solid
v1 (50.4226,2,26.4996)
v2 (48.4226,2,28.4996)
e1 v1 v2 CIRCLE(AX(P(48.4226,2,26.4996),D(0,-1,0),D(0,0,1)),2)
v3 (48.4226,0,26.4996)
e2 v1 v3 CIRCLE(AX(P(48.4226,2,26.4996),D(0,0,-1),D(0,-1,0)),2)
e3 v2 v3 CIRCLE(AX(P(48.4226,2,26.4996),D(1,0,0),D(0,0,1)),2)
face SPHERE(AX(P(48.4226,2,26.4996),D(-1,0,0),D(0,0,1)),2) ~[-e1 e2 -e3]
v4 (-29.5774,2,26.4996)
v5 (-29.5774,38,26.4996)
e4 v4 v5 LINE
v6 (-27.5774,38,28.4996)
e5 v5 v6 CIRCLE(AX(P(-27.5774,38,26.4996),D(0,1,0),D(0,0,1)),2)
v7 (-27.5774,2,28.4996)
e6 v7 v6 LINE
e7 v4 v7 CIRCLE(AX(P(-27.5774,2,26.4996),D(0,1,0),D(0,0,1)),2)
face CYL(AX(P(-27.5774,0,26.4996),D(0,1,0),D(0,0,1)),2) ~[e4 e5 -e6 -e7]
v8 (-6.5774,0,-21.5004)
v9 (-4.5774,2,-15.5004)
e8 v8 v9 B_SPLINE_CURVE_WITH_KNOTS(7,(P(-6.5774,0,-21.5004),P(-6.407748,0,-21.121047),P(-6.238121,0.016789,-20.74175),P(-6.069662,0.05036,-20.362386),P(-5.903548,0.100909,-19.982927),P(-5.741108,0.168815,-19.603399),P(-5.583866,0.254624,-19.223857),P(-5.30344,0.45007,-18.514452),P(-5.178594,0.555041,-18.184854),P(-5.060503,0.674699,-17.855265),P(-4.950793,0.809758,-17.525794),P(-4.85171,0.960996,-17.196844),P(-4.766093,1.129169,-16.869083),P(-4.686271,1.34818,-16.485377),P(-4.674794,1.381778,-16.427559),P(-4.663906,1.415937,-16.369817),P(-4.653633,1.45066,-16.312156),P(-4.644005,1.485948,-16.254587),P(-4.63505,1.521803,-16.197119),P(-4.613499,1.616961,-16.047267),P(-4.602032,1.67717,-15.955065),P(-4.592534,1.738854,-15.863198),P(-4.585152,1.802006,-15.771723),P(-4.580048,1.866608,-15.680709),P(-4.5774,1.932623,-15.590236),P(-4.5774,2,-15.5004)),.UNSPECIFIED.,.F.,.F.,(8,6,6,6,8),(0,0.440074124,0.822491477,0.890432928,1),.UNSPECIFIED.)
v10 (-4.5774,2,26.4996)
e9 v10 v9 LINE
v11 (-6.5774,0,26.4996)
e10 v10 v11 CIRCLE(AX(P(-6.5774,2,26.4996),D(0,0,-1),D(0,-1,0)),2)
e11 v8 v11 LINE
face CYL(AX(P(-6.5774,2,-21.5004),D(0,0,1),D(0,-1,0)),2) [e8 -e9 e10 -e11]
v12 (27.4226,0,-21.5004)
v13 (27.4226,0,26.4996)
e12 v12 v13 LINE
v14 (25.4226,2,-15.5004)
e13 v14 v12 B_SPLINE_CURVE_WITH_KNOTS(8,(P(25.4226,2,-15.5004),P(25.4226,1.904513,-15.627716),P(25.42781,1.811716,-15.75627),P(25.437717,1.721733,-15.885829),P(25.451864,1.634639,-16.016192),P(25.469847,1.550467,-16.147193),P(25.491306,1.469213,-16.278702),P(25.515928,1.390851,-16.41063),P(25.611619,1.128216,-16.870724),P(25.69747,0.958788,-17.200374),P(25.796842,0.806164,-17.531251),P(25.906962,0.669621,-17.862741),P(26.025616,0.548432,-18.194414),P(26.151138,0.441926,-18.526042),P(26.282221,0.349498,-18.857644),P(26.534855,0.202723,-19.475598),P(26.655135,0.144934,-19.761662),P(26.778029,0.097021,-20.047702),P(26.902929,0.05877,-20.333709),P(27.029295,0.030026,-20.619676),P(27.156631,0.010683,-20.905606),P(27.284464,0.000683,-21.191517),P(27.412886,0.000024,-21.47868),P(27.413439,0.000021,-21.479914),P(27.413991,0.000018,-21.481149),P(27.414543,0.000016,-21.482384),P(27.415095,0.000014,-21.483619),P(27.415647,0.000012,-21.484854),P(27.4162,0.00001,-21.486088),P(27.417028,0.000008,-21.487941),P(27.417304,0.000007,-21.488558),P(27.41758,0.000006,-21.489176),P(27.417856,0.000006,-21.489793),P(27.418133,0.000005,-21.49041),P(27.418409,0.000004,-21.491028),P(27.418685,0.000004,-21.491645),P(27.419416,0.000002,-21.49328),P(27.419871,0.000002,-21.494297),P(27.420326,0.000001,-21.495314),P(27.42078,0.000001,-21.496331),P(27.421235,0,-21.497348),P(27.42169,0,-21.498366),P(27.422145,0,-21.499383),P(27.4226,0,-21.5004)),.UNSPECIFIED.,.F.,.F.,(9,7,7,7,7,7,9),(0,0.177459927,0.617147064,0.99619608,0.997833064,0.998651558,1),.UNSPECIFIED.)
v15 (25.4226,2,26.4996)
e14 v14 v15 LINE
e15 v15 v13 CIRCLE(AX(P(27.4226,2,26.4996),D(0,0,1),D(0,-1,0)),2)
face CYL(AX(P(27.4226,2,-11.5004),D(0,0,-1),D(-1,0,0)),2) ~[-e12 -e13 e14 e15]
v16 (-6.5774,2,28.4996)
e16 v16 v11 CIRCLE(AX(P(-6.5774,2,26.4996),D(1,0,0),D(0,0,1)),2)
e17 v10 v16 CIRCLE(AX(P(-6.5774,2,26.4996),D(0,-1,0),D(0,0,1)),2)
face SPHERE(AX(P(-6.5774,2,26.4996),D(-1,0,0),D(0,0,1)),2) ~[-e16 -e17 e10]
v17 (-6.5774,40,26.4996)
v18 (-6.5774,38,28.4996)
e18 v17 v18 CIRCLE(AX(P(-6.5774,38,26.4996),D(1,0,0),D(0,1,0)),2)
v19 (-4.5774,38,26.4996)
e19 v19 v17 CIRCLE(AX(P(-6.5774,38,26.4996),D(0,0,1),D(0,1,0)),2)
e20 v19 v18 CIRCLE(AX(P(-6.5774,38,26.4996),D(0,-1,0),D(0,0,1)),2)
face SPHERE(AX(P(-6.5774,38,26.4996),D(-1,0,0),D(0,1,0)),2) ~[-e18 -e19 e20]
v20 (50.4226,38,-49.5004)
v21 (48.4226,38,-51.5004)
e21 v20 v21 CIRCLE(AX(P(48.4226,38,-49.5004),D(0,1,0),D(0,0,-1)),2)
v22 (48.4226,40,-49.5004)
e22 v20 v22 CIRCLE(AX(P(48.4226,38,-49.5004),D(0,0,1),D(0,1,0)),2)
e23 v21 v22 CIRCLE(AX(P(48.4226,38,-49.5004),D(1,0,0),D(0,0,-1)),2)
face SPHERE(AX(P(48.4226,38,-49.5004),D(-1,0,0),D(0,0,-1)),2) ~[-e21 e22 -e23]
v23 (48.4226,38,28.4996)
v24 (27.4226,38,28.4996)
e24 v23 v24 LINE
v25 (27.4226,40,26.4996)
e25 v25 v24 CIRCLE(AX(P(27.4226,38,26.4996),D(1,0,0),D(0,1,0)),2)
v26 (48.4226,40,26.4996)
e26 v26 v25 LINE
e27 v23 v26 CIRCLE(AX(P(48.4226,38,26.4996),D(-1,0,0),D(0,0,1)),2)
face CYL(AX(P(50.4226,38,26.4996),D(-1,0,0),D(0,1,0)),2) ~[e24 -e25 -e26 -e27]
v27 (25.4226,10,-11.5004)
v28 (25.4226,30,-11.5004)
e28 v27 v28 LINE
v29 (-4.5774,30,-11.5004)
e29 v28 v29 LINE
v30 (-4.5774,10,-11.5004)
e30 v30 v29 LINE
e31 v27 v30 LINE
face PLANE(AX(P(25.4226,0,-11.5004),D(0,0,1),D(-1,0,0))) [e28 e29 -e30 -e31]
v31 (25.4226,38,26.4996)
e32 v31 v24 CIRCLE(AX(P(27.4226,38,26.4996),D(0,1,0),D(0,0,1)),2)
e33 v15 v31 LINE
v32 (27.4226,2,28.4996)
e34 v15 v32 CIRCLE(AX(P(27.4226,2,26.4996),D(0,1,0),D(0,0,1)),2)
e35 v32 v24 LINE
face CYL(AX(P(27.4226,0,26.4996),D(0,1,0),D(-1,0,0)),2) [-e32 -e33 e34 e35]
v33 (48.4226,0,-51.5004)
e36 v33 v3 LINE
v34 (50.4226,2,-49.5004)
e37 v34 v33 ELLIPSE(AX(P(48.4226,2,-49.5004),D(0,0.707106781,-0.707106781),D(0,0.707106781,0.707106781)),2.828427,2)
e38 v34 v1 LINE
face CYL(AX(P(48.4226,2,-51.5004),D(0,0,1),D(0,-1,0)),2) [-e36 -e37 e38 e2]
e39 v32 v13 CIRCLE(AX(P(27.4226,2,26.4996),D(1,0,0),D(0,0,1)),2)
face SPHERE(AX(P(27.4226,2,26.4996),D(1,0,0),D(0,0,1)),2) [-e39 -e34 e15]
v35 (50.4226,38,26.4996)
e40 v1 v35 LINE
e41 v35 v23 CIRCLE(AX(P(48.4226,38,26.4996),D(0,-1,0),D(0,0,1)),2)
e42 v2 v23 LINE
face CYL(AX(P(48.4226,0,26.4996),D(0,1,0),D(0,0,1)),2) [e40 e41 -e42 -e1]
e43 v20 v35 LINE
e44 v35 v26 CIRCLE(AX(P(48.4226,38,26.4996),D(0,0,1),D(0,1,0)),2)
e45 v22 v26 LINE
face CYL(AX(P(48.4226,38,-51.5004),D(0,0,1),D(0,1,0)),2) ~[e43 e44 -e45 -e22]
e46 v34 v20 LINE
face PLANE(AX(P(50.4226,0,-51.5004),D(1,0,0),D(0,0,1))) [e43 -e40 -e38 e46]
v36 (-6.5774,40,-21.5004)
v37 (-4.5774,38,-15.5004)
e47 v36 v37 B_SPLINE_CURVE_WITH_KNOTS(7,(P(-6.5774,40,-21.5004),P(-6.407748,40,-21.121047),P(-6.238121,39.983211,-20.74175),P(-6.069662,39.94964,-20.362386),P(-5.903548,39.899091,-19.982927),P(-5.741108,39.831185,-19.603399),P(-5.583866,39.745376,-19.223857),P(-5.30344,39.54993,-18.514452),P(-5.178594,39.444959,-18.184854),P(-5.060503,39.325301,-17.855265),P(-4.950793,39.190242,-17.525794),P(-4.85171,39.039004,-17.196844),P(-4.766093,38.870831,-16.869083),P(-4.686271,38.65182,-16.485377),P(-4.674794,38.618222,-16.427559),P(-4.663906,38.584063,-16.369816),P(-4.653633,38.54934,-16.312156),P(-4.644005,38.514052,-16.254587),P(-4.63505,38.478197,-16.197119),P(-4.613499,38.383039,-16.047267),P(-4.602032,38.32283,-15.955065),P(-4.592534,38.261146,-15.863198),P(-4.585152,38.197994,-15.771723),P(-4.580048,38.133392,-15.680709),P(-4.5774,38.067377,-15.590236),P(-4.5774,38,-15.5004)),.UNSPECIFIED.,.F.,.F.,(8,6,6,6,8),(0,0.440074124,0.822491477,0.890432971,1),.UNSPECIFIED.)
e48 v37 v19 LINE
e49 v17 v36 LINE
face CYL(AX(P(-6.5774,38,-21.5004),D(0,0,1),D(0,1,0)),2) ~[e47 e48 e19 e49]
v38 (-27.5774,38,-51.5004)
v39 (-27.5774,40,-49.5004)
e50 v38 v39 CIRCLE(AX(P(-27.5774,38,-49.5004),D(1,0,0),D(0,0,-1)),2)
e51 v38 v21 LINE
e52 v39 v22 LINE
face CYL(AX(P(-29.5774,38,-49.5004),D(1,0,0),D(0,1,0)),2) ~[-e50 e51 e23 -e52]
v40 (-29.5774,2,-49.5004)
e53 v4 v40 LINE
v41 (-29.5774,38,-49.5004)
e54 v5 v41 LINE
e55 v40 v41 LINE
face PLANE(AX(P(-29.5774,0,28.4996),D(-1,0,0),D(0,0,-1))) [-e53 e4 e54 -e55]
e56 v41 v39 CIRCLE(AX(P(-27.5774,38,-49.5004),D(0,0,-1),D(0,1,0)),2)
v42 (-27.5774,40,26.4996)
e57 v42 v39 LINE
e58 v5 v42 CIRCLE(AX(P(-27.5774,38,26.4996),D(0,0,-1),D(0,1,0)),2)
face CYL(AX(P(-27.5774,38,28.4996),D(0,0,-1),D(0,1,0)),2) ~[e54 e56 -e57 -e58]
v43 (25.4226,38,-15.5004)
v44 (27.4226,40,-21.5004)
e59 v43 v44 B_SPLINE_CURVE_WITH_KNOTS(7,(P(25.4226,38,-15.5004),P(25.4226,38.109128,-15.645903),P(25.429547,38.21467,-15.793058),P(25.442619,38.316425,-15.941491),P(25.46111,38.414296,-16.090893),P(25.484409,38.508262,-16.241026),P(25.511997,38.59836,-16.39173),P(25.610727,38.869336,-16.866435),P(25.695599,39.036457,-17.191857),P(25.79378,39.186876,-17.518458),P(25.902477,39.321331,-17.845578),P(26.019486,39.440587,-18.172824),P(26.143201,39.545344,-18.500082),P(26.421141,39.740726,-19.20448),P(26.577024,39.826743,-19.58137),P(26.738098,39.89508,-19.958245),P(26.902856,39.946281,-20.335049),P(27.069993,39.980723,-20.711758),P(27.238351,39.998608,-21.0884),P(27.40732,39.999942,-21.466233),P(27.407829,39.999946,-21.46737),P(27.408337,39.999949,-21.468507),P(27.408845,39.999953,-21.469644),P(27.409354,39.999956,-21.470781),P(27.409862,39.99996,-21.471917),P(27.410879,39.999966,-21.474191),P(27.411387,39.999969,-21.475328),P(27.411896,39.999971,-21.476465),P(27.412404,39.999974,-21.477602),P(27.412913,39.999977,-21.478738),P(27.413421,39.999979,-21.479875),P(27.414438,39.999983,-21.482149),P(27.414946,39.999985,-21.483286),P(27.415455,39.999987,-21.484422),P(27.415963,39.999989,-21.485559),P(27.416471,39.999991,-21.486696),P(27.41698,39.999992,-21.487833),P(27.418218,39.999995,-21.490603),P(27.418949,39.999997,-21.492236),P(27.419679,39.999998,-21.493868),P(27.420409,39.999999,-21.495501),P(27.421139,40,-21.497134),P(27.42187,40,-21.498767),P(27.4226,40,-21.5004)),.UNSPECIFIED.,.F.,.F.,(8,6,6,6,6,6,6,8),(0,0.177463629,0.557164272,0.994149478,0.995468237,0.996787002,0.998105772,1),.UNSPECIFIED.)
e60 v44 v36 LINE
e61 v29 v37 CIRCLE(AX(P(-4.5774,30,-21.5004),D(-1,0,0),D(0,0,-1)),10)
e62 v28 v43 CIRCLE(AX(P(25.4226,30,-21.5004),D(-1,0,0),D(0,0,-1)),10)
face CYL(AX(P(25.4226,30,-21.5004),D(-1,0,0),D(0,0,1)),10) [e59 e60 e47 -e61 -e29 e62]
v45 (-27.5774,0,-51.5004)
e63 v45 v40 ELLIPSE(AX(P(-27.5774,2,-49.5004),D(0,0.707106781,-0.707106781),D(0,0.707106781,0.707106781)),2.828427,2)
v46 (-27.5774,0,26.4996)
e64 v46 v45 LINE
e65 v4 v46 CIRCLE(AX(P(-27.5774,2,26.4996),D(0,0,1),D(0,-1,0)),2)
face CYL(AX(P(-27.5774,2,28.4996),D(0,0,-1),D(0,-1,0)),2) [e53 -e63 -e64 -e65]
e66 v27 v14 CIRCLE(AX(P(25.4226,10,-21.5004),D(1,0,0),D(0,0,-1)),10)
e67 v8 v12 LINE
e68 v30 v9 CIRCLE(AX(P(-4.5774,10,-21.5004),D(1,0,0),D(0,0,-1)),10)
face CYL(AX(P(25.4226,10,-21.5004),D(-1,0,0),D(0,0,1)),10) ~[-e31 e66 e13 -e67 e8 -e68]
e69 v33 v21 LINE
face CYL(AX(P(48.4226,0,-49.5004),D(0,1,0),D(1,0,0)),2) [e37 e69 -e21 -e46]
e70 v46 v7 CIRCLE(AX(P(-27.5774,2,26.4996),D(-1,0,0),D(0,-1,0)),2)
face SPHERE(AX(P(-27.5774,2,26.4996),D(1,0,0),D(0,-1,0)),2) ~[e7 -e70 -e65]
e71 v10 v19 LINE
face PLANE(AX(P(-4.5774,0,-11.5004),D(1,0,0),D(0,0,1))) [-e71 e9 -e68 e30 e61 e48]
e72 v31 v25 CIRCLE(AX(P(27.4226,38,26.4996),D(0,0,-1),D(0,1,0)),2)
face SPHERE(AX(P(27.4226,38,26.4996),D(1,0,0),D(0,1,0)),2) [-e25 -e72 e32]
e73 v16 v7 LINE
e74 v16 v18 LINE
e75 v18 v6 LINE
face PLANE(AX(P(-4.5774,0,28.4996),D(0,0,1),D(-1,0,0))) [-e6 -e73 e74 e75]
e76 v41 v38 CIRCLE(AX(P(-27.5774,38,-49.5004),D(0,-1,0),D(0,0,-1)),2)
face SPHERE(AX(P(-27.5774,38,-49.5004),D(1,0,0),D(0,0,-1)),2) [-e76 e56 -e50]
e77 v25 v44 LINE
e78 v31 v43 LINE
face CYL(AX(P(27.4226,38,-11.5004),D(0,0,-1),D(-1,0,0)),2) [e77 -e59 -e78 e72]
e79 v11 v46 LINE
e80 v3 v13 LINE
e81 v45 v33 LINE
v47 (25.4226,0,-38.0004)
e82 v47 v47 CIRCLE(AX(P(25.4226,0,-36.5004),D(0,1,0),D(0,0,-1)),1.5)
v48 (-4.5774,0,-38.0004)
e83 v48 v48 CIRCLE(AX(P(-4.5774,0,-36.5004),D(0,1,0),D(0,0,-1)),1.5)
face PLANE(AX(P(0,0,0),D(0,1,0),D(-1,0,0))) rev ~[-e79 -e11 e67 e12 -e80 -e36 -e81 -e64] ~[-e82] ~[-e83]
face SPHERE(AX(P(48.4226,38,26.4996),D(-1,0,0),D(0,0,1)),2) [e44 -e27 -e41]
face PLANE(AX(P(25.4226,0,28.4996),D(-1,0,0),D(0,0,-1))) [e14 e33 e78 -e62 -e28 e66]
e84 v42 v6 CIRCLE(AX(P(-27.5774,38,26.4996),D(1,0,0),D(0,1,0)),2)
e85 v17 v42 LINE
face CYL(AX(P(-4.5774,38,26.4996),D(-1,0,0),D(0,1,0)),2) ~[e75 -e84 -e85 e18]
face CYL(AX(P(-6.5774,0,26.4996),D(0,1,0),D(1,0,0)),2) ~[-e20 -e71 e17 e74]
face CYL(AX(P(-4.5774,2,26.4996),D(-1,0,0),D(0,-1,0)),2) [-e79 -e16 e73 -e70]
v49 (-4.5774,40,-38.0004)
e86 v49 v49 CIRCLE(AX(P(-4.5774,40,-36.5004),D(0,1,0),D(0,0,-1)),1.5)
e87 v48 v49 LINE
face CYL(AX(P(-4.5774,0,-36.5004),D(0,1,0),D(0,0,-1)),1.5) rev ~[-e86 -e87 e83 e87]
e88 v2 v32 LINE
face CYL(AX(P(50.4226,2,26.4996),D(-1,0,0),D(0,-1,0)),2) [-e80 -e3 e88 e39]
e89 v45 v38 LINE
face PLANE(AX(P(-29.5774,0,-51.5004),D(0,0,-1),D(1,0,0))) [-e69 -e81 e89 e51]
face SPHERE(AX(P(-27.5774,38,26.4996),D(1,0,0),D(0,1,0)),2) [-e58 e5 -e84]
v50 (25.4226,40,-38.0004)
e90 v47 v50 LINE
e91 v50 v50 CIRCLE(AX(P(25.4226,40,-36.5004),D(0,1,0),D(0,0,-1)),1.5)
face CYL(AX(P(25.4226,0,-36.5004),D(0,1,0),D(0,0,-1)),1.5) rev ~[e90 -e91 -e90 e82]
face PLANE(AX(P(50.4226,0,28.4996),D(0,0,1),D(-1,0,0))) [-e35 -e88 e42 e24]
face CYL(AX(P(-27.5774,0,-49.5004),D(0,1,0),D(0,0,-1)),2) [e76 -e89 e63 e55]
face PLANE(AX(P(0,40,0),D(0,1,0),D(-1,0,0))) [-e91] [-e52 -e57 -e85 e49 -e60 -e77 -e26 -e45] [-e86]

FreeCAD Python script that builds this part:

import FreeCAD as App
import Part
import Sketcher
from FreeCAD import Vector


def edges_at(feature, points):
    """Names of the edges that pass closest to the given points."""
    edges = feature.Shape.Edges
    near = lambda p: min(range(len(edges)), key=lambda i: edges[i].distToShape(Part.Vertex(*p))[0])
    return sorted({f"Edge{near(p) + 1}" for p in points})

doc = App.newDocument("Part")
body = doc.addObject("PartDesign::Body", "Body")

sketch1 = body.newObject("Sketcher::SketchObject", "Sketch")
sketch1.AttachmentSupport = (doc.getObject("XZ_Plane"), [""])
sketch1.MapMode = "FlatFace"
sketch1.addGeometry(Part.LineSegment(Vector(50.4226, -51.5004, 0), Vector(-29.5774, -51.5004, 0)), False)
sketch1.addGeometry(Part.LineSegment(Vector(-29.5774, -51.5004, 0), Vector(-29.5774, 28.4996, 0)), False)
sketch1.addGeometry(Part.LineSegment(Vector(-29.5774, 28.4996, 0), Vector(-4.5774, 28.4996, 0)), False)
sketch1.addGeometry(Part.LineSegment(Vector(-4.5774, 28.4996, 0), Vector(-4.5774, -11.5004, 0)), False)
sketch1.addGeometry(Part.LineSegment(Vector(-4.5774, -11.5004, 0), Vector(25.4226, -11.5004, 0)), False)
sketch1.addGeometry(Part.LineSegment(Vector(25.4226, -11.5004, 0), Vector(25.4226, 28.4996, 0)), False)
sketch1.addGeometry(Part.LineSegment(Vector(25.4226, 28.4996, 0), Vector(50.4226, 28.4996, 0)), False)
sketch1.addGeometry(Part.LineSegment(Vector(50.4226, 28.4996, 0), Vector(50.4226, -51.5004, 0)), False)
sketch1.addConstraint(Sketcher.Constraint("Coincident", 0, 2, 1, 1))
sketch1.addConstraint(Sketcher.Constraint("Coincident", 1, 2, 2, 1))
sketch1.addConstraint(Sketcher.Constraint("Coincident", 2, 2, 3, 1))
sketch1.addConstraint(Sketcher.Constraint("Coincident", 3, 2, 4, 1))
sketch1.addConstraint(Sketcher.Constraint("Coincident", 4, 2, 5, 1))
sketch1.addConstraint(Sketcher.Constraint("Coincident", 5, 2, 6, 1))
sketch1.addConstraint(Sketcher.Constraint("Coincident", 6, 2, 7, 1))
sketch1.addConstraint(Sketcher.Constraint("Coincident", 7, 2, 0, 1))
sketch1.addConstraint(Sketcher.Constraint("Horizontal", 0))
sketch1.addConstraint(Sketcher.Constraint("Vertical", 1))
sketch1.addConstraint(Sketcher.Constraint("Horizontal", 2))
sketch1.addConstraint(Sketcher.Constraint("Vertical", 3))
sketch1.addConstraint(Sketcher.Constraint("Horizontal", 4))
sketch1.addConstraint(Sketcher.Constraint("Vertical", 5))
sketch1.addConstraint(Sketcher.Constraint("Horizontal", 6))
sketch1.addConstraint(Sketcher.Constraint("Vertical", 7))
sketch1.addConstraint(Sketcher.Constraint("Horizontal", 2, 2, 5, 2))
sketch1.addConstraint(Sketcher.Constraint("Equal", 2, 6))
sketch1.addConstraint(Sketcher.Constraint("Equal", 0, 1))
sketch1.addConstraint(Sketcher.Constraint("DistanceX", 0, 2, 0, 1, 80.0))
sketch1.addConstraint(Sketcher.Constraint("DistanceX", 4, 1, 4, 2, 30.0))
sketch1.addConstraint(Sketcher.Constraint("DistanceY", 3, 2, 3, 1, 40.0))
sketch1.addConstraint(Sketcher.Constraint("DistanceX", 0, 2, -1, 1, 29.5774))
sketch1.addConstraint(Sketcher.Constraint("DistanceY", 0, 2, -1, 1, 51.5004))
pad1 = body.newObject("PartDesign::Pad", "Pad")
pad1.Profile = sketch1
pad1.Length = 40
pad1.Reversed = True
doc.recompute()

fillet = body.newObject("PartDesign::Fillet", "Fillet")
fillet.Base = (pad1, edges_at(pad1, [(10.423, 40, -11.5), (10.423, 0, -11.5)]))
fillet.Radius = 10
doc.recompute()

fillet2 = body.newObject("PartDesign::Fillet", "Fillet001")
fillet2.Base = (fillet, edges_at(fillet, [
    (10.423, 40, -51.5),
    (-29.577, 20, -51.5),
    (50.423, 20, -51.5),
    (-17.077, 40, 28.5),
    (37.923, 40, 28.5),
    (37.923, 0, 28.5),
    (-17.077, 0, 28.5),
    (-4.577, 40, 8.5),
    (-29.577, 40, -11.5),
    (-29.577, 0, -11.5),
    (-29.577, 20, 28.5),
    (-4.577, 20, 28.5),
    (25.423, 40, 8.5),
    (25.423, 20, 28.5),
    (25.423, 0, 8.5),
    (-4.577, 0, 8.5),
    (50.423, 20, 28.5),
    (50.423, 0, -11.5),
    (50.423, 40, -11.5),
]))
fillet2.Radius = 2

sketch2 = body.newObject("Sketcher::SketchObject", "Sketch001")
sketch2.AttachmentSupport = (doc.getObject("XZ_Plane"), [""])
sketch2.MapMode = "FlatFace"
sketch2.addGeometry(Part.Circle(Vector(-4.5774, -36.5004, 0), Vector(0, 0, 1), 1.5), False)
sketch2.addGeometry(Part.Circle(Vector(25.4226, -36.5004, 0), Vector(0, 0, 1), 1.5), False)
sketch2.addConstraint(Sketcher.Constraint("Equal", 0, 1))
sketch2.addConstraint(Sketcher.Constraint("Horizontal", 0, 3, 1, 3))
sketch2.addConstraint(Sketcher.Constraint("Diameter", 0, 3.0))
sketch2.addConstraint(Sketcher.Constraint("DistanceX", 0, 3, 1, 3, 30.0))
sketch2.addConstraint(Sketcher.Constraint("DistanceX", 0, 3, -1, 1, 4.5774))
sketch2.addConstraint(Sketcher.Constraint("DistanceY", 0, 3, -1, 1, 36.5004))
doc.recompute()
hole = body.newObject("PartDesign::Hole", "Hole")
hole.Profile = sketch2
hole.ThreadType = "None"
hole.Diameter = 3
hole.DepthType = "ThroughAll"

doc.recompute()
